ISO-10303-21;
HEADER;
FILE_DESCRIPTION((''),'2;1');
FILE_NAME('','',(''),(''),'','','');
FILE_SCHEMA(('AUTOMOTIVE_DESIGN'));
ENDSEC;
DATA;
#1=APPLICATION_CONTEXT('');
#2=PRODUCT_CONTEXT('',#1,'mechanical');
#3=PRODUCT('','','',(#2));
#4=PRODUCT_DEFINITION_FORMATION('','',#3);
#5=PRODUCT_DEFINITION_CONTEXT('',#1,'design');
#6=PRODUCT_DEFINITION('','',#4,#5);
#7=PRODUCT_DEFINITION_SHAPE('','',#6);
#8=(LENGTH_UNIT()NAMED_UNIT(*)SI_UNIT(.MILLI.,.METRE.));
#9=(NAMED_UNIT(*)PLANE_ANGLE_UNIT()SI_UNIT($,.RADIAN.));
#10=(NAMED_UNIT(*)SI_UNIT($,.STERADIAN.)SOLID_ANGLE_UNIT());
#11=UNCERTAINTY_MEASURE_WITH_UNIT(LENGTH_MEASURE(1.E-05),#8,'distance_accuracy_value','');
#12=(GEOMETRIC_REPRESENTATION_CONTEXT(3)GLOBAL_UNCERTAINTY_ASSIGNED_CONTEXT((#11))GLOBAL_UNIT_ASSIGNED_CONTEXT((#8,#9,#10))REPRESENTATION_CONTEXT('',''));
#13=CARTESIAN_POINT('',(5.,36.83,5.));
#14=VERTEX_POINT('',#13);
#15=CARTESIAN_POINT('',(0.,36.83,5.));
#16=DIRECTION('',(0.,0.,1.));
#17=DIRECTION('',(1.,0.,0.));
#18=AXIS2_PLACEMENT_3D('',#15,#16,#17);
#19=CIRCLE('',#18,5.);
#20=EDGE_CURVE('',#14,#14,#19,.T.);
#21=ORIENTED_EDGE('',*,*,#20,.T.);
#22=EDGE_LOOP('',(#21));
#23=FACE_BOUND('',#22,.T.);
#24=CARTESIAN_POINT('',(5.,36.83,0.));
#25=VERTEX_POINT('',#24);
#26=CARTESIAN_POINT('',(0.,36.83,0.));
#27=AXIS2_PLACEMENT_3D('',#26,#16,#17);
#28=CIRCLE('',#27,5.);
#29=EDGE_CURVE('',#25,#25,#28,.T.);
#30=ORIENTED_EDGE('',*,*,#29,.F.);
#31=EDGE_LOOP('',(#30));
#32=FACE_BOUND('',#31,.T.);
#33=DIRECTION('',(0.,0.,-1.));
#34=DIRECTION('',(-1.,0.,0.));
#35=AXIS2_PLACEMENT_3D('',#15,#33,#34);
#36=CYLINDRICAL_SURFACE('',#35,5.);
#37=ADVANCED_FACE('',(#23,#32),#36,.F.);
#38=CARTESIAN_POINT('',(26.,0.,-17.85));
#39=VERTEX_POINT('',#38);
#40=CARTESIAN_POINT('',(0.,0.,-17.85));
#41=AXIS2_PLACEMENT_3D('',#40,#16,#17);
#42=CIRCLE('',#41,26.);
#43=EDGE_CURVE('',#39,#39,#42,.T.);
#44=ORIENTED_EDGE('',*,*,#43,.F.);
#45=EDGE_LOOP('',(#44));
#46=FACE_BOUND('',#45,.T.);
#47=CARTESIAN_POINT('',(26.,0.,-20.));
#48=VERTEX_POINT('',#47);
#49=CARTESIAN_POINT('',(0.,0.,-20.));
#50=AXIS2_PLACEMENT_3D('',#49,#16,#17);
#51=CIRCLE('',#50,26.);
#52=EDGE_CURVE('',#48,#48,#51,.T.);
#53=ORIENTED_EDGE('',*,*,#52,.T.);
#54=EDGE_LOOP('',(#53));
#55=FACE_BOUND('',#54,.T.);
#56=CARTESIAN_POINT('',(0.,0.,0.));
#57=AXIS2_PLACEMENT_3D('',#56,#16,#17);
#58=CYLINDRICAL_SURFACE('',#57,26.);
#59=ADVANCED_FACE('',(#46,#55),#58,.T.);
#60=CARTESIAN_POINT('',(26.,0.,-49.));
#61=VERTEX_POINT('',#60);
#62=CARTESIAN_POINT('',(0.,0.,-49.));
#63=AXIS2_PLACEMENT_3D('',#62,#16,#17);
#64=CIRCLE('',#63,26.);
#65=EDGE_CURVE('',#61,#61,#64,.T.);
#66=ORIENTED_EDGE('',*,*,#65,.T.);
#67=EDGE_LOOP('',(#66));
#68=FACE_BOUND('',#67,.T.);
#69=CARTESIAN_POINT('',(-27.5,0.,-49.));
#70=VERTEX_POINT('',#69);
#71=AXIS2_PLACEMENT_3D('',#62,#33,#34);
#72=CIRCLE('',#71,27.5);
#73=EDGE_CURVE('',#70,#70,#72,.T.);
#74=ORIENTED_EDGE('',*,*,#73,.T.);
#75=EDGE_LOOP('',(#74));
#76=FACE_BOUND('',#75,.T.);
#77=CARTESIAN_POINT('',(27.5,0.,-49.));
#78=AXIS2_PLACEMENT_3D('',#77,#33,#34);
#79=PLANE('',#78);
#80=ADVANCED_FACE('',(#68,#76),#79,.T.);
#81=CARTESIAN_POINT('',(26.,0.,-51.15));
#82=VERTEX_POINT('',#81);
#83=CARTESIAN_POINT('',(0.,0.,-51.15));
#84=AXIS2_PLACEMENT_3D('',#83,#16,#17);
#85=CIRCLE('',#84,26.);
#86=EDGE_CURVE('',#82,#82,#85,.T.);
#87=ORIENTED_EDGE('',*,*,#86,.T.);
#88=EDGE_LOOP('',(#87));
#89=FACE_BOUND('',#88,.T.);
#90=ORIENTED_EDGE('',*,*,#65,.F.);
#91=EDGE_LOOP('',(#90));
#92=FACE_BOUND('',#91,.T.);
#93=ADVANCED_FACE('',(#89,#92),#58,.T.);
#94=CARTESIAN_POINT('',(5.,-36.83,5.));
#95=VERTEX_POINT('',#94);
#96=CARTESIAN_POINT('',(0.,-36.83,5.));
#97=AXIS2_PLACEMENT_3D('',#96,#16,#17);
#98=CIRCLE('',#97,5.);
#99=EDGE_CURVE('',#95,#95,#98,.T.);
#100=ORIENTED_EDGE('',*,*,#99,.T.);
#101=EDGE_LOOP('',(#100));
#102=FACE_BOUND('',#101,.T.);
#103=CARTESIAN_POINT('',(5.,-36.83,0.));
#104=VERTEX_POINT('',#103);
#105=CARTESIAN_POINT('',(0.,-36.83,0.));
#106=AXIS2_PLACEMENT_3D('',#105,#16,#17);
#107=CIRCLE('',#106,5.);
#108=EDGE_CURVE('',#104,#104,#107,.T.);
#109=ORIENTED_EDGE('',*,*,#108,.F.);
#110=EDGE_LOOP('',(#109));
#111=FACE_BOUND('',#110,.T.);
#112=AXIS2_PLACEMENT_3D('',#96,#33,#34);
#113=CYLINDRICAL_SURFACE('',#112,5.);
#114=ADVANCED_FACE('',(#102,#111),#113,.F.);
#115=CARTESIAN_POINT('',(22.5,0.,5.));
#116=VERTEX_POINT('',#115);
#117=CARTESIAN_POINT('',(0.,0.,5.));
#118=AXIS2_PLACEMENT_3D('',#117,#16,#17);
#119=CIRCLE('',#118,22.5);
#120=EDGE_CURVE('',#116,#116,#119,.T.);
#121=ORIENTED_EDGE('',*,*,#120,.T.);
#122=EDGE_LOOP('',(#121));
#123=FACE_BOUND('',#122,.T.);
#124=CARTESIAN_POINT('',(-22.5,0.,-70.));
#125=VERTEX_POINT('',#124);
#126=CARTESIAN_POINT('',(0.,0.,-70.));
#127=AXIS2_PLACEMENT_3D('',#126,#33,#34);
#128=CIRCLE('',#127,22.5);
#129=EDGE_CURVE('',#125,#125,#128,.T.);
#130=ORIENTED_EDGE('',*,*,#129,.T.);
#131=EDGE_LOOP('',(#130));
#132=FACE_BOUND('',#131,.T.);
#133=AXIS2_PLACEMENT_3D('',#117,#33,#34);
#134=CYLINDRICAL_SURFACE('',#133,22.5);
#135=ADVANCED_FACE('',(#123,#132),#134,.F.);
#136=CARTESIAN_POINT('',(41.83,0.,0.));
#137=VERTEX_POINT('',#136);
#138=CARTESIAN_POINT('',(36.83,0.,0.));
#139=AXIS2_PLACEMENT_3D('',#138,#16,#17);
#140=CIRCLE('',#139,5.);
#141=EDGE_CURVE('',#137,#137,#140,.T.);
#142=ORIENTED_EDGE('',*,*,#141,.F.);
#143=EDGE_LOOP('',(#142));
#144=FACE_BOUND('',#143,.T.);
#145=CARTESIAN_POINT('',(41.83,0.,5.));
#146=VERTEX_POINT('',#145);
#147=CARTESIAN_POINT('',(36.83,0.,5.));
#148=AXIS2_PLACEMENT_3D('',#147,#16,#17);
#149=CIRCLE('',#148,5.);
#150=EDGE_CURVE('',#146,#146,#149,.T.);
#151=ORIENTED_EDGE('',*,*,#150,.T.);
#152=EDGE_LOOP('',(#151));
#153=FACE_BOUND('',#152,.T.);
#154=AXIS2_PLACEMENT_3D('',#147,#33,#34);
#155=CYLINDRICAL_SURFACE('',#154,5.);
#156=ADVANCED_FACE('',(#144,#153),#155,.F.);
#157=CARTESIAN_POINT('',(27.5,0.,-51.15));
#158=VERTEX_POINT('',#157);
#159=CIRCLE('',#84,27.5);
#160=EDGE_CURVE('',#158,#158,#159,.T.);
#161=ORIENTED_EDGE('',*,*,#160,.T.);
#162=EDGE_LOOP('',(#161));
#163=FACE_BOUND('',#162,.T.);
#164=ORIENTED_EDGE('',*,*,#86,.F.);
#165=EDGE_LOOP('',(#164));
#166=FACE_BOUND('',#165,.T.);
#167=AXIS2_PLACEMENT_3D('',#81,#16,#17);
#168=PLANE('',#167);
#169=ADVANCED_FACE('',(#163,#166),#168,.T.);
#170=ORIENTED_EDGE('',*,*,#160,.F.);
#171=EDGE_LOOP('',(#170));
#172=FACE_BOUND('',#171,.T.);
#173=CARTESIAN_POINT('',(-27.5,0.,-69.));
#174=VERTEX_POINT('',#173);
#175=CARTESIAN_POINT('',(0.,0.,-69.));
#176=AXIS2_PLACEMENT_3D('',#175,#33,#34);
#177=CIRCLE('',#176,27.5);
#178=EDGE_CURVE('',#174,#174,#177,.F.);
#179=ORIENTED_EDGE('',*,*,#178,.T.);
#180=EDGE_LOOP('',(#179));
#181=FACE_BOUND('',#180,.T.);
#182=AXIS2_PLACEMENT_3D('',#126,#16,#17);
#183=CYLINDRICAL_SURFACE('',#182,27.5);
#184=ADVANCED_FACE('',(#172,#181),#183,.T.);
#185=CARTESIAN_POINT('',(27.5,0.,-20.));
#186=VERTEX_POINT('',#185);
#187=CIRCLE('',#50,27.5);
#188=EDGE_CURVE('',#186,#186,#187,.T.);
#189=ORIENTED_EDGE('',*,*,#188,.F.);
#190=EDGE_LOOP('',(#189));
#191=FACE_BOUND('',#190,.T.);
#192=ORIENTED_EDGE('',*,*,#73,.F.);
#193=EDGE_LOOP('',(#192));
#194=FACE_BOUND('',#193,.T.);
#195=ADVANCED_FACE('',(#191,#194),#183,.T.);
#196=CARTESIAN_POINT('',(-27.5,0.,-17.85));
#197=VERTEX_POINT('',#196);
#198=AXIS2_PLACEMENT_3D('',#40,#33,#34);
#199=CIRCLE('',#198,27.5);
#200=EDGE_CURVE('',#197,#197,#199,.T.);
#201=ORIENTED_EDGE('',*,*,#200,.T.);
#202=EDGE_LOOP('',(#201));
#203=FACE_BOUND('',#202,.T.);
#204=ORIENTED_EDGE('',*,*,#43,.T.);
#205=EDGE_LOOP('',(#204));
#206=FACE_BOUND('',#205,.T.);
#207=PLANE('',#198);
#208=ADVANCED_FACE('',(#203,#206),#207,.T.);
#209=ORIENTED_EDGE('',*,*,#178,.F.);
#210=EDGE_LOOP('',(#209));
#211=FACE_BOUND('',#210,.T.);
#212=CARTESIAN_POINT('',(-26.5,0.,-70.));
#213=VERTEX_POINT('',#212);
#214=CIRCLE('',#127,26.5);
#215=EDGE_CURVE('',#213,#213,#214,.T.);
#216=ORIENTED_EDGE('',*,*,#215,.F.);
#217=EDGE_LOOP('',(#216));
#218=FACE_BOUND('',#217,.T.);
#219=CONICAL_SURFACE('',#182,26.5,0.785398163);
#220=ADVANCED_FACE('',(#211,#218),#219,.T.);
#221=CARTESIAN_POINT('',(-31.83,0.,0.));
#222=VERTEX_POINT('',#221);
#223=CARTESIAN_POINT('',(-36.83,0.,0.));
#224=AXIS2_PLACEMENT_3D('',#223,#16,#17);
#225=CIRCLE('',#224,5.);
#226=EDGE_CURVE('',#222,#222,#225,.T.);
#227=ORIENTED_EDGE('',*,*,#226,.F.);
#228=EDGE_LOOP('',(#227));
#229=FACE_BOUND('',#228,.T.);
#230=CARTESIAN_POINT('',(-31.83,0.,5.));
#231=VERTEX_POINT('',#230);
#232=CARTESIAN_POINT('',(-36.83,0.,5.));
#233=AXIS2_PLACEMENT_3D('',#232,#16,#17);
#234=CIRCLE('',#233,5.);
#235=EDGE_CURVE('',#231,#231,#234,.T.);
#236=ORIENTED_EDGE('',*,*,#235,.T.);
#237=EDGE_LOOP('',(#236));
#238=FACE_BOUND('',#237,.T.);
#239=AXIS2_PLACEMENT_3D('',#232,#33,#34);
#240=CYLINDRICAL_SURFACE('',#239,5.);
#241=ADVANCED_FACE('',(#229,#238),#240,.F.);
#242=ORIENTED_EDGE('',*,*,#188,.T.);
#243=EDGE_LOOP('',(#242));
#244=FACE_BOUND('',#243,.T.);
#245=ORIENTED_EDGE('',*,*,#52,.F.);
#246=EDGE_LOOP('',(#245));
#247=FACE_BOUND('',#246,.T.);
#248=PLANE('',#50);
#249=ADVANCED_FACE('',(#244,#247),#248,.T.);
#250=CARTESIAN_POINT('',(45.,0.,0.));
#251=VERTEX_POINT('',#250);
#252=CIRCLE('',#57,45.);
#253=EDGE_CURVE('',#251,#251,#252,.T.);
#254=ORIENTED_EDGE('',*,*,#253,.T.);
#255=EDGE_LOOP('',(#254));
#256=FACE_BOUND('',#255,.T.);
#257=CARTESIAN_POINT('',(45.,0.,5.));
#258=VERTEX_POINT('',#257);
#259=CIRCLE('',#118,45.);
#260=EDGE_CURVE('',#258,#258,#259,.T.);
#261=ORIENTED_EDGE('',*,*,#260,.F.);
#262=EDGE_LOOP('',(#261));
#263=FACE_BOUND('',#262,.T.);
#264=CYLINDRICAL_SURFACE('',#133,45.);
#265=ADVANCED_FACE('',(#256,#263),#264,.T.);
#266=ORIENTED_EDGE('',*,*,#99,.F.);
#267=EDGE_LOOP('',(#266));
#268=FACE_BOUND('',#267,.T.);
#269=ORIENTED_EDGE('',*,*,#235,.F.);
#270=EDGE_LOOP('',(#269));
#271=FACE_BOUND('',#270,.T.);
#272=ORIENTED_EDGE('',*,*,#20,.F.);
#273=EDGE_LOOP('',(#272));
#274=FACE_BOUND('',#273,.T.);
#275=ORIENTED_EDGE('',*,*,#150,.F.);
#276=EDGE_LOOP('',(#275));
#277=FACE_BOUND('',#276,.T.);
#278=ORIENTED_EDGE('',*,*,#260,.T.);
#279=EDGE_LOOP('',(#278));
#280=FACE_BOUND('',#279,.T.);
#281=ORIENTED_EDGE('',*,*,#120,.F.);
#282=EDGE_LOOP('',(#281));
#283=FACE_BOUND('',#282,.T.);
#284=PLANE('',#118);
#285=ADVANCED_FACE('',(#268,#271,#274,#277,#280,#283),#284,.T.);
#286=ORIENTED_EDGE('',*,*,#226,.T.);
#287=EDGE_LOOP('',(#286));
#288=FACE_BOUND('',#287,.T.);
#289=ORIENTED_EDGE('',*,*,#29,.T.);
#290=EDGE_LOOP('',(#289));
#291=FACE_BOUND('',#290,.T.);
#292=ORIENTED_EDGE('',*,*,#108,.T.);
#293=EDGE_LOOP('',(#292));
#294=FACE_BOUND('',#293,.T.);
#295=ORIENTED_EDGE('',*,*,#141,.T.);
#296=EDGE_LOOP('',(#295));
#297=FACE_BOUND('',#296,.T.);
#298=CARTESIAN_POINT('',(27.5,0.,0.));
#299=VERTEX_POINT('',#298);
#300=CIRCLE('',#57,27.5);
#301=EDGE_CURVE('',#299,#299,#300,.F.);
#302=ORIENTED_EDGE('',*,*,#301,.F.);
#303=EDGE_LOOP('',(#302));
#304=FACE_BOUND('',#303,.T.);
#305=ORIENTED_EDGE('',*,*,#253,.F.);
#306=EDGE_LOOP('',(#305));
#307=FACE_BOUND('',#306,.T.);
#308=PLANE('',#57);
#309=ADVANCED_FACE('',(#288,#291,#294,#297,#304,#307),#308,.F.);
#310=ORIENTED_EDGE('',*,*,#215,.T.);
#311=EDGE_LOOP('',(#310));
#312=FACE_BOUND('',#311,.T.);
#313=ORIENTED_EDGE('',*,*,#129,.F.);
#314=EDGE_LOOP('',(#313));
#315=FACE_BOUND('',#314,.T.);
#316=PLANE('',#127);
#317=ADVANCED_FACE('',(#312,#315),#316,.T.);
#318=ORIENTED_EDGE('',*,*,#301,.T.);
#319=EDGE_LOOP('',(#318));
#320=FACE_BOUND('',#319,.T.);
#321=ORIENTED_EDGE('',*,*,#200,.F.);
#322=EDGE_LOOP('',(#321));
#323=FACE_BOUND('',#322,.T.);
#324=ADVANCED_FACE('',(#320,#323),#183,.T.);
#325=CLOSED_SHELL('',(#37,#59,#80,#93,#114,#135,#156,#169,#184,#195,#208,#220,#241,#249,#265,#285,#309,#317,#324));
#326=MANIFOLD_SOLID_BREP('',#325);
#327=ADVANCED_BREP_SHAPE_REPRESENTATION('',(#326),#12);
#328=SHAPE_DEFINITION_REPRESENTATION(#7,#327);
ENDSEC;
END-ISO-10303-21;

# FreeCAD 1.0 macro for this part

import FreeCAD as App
import Part
import Sketcher

V = App.Vector


def edges_at(feature, points):
    """Names of the edges that pass closest to the given points."""
    edges = feature.Shape.Edges
    near = lambda p: min(range(len(edges)), key=lambda i: edges[i].distToShape(Part.Vertex(*p))[0])
    return sorted({f"Edge{near(p) + 1}" for p in points})

doc = App.newDocument("Part")
params = doc.addObject("Spreadsheet::Sheet", "Params")
for row, (alias, value) in enumerate([
    ("sketch1_diameter", "90 mm"),
    ("sketch1_diameter2", "10 mm"),
    ("sketch1_diameter3", "45 mm"),
    ("pad1_length", "5 mm"),
    ("sketch2_diameter", "55 mm"),
    ("sketch2_diameter2", "45 mm"),
    ("pad2_length", "70 mm"),
    ("sketch3_height", "2.15 mm"),
    ("groove_angle", "360 deg"),
    ("sketch4_height", "2.15 mm"),
    ("groove2_angle", "360 deg"),
    ("chamfer_size", "1 mm"),
], start=1):
    params.set(f"A{row}", alias)
    params.set(f"B{row}", "=" + value)
    params.setAlias(f"B{row}", alias)

body = doc.addObject("PartDesign::Body", "Body")

sketch1 = doc.addObject("Sketcher::SketchObject", "Sketch")
body.addObject(sketch1)
sketch1.AttachmentSupport = (doc.XY_Plane, [""])
sketch1.MapMode = "FlatFace"
sketch1.addGeometry([
    Part.Circle(V(0, 0, 0), V(0, 0, 1), 45),
    Part.Circle(V(0, -37, 0), V(0, 0, 1), 5),
    Part.Circle(V(-37, 0, 0), V(0, 0, 1), 5),
    Part.Circle(V(0, 0, 0), V(0, 0, 1), 22),
    Part.Circle(V(37, 0, 0), V(0, 0, 1), 5),
    Part.Circle(V(0, 37, 0), V(0, 0, 1), 5),
], False)
sketch1.addConstraint([
    Sketcher.Constraint("Coincident", 0, 3, -1, 1),
    Sketcher.Constraint("Coincident", 3, 3, -1, 1),
    Sketcher.Constraint("Equal", 1, 2),
    Sketcher.Constraint("Equal", 2, 4),
    Sketcher.Constraint("Equal", 4, 5),
    Sketcher.Constraint("Symmetric", 2, 3, 4, 3, -1, 1),
    Sketcher.Constraint("Symmetric", 1, 3, 5, 3, -1, 1),
    Sketcher.Constraint("PointOnObject", 1, 3, -2),
    Sketcher.Constraint("PointOnObject", 2, 3, -1),
    Sketcher.Constraint("Diameter", 0, 90.0),
    Sketcher.Constraint("Diameter", 1, 10.0),
    Sketcher.Constraint("Diameter", 3, 45.0),
    Sketcher.Constraint("DistanceY", 1, 3, -1, 1, 36.83),
    Sketcher.Constraint("DistanceX", 2, 3, -1, 1, 36.83),
])
sketch1.setExpression("Constraints[9]", "Params.sketch1_diameter")
sketch1.setExpression("Constraints[10]", "Params.sketch1_diameter2")
sketch1.setExpression("Constraints[11]", "Params.sketch1_diameter3")
pad1 = doc.addObject("PartDesign::Pad", "Pad")
body.addObject(pad1)
pad1.Profile = sketch1
pad1.setExpression("Length", "Params.pad1_length")

sketch2 = doc.addObject("Sketcher::SketchObject", "Sketch001")
body.addObject(sketch2)
sketch2.AttachmentSupport = (doc.XY_Plane, [""])
sketch2.MapMode = "FlatFace"
sketch2.AttachmentOffset = App.Placement(V(0, 0, -70), App.Rotation())
sketch2.addGeometry([
    Part.Circle(V(0, 0, 0), V(0, 0, 1), 28),
    Part.Circle(V(0, 0, 0), V(0, 0, 1), 22),
], False)
sketch2.addConstraint([
    Sketcher.Constraint("Coincident", 0, 3, -1, 1),
    Sketcher.Constraint("Coincident", 1, 3, -1, 1),
    Sketcher.Constraint("Diameter", 0, 55.0),
    Sketcher.Constraint("Diameter", 1, 45.0),
])
sketch2.setExpression("Constraints[2]", "Params.sketch2_diameter")
sketch2.setExpression("Constraints[3]", "Params.sketch2_diameter2")
pad2 = doc.addObject("PartDesign::Pad", "Pad001")
body.addObject(pad2)
pad2.Profile = sketch2
pad2.setExpression("Length", "Params.pad2_length")

sketch3 = doc.addObject("Sketcher::SketchObject", "Sketch002")
body.addObject(sketch3)
sketch3.AttachmentSupport = (doc.XZ_Plane, [""])
sketch3.MapMode = "FlatFace"
sketch3.addGeometry([
    Part.LineSegment(V(26, -17.9, 0), V(28.4, -17.9, 0)),
    Part.LineSegment(V(28.4, -17.9, 0), V(28.4, -20, 0)),
    Part.LineSegment(V(28.4, -20, 0), V(26, -20, 0)),
    Part.LineSegment(V(26, -20, 0), V(26, -17.9, 0)),
], False)
sketch3.addConstraint([
    Sketcher.Constraint("Coincident", 0, 2, 1, 1),
    Sketcher.Constraint("Coincident", 1, 2, 2, 1),
    Sketcher.Constraint("Coincident", 2, 2, 3, 1),
    Sketcher.Constraint("Coincident", 3, 2, 0, 1),
    Sketcher.Constraint("Horizontal", 0),
    Sketcher.Constraint("Vertical", 1),
    Sketcher.Constraint("Horizontal", 2),
    Sketcher.Constraint("Vertical", 3),
    Sketcher.Constraint("DistanceY", 1, 2, -1, 1, 20.0),
    Sketcher.Constraint("DistanceX", -1, 1, 2, 2, 26.0),
    Sketcher.Constraint("DistanceY", 1, 2, 1, 1, 2.15),
    Sketcher.Constraint("DistanceX", 0, 1, 0, 2, 2.36783),
])
sketch3.setExpression("Constraints[10]", "Params.sketch3_height")
groove = doc.addObject("PartDesign::Groove", "Groove")
body.addObject(groove)
groove.Profile = sketch3
groove.ReferenceAxis = (sketch3, ["V_Axis"])
groove.setExpression("Angle", "Params.groove_angle")

sketch4 = doc.addObject("Sketcher::SketchObject", "Sketch003")
body.addObject(sketch4)
sketch4.AttachmentSupport = (doc.XZ_Plane, [""])
sketch4.MapMode = "FlatFace"
sketch4.addGeometry([
    Part.LineSegment(V(26, -49, 0), V(28.8, -49, 0)),
    Part.LineSegment(V(28.8, -49, 0), V(28.8, -51.1, 0)),
    Part.LineSegment(V(28.8, -51.1, 0), V(26, -51.1, 0)),
    Part.LineSegment(V(26, -51.1, 0), V(26, -49, 0)),
], False)
sketch4.addConstraint([
    Sketcher.Constraint("Coincident", 0, 2, 1, 1),
    Sketcher.Constraint("Coincident", 1, 2, 2, 1),
    Sketcher.Constraint("Coincident", 2, 2, 3, 1),
    Sketcher.Constraint("Coincident", 3, 2, 0, 1),
    Sketcher.Constraint("Horizontal", 0),
    Sketcher.Constraint("Vertical", 1),
    Sketcher.Constraint("Horizontal", 2),
    Sketcher.Constraint("Vertical", 3),
    Sketcher.Constraint("DistanceY", 0, 2, -1, 1, 49.0),
    Sketcher.Constraint("DistanceX", -1, 1, 2, 2, 26.0),
    Sketcher.Constraint("DistanceY", 1, 2, 1, 1, 2.15),
    Sketcher.Constraint("DistanceX", 0, 1, 0, 2, 2.767265),
])
sketch4.setExpression("Constraints[10]", "Params.sketch4_height")
groove2 = doc.addObject("PartDesign::Groove", "Groove001")
body.addObject(groove2)
groove2.Profile = sketch4
groove2.ReferenceAxis = (sketch4, ["V_Axis"])
groove2.setExpression("Angle", "Params.groove2_angle")
doc.recompute()

chamfer = doc.addObject("PartDesign::Chamfer", "Chamfer")
body.addObject(chamfer)
chamfer.Base = (groove2, edges_at(groove2, [(-27.5, 0, -70)]))
chamfer.setExpression("Size", "Params.chamfer_size")

doc.recompute()
